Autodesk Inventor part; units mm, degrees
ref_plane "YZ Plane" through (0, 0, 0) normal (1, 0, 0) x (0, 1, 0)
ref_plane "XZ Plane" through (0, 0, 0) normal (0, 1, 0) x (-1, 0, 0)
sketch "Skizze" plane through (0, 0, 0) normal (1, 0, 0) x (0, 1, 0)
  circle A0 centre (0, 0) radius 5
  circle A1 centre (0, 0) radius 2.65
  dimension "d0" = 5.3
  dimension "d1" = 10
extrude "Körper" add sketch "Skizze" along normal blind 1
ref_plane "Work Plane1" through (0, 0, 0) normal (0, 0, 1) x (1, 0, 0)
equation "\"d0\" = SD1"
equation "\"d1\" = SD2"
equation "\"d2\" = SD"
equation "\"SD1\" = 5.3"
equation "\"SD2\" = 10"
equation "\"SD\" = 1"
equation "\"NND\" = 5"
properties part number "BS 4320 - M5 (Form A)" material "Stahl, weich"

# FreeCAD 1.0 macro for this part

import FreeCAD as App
import Part
import Sketcher
from FreeCAD import Vector
Q = App.Units.Quantity

doc = App.newDocument("Part")
body = doc.addObject("PartDesign::Body", "Body")

sketch1 = doc.addObject("Sketcher::SketchObject", "Sketch")
body.addObject(sketch1)
sketch1.AttachmentSupport = (doc.YZ_Plane, [""])
sketch1.MapMode = "FlatFace"
sketch1.addGeometry([
    Part.Circle(Vector(0, 0, 0), Vector(0, 0, 1), 5),
    Part.Circle(Vector(0, 0, 0), Vector(0, 0, 1), 2.6),
], False)
sketch1.addConstraint([
    Sketcher.Constraint("Coincident", 0, 3, -1, 1),
    Sketcher.Constraint("Coincident", 1, 3, -1, 1),
    Sketcher.Constraint("Diameter", 0, Q("10 mm")),
    Sketcher.Constraint("Diameter", 1, Q("5.3 mm")),
])
pad1 = doc.addObject("PartDesign::Pad", "Pad")
body.addObject(pad1)
pad1.Profile = sketch1
pad1.Length = 1

doc.recompute()
